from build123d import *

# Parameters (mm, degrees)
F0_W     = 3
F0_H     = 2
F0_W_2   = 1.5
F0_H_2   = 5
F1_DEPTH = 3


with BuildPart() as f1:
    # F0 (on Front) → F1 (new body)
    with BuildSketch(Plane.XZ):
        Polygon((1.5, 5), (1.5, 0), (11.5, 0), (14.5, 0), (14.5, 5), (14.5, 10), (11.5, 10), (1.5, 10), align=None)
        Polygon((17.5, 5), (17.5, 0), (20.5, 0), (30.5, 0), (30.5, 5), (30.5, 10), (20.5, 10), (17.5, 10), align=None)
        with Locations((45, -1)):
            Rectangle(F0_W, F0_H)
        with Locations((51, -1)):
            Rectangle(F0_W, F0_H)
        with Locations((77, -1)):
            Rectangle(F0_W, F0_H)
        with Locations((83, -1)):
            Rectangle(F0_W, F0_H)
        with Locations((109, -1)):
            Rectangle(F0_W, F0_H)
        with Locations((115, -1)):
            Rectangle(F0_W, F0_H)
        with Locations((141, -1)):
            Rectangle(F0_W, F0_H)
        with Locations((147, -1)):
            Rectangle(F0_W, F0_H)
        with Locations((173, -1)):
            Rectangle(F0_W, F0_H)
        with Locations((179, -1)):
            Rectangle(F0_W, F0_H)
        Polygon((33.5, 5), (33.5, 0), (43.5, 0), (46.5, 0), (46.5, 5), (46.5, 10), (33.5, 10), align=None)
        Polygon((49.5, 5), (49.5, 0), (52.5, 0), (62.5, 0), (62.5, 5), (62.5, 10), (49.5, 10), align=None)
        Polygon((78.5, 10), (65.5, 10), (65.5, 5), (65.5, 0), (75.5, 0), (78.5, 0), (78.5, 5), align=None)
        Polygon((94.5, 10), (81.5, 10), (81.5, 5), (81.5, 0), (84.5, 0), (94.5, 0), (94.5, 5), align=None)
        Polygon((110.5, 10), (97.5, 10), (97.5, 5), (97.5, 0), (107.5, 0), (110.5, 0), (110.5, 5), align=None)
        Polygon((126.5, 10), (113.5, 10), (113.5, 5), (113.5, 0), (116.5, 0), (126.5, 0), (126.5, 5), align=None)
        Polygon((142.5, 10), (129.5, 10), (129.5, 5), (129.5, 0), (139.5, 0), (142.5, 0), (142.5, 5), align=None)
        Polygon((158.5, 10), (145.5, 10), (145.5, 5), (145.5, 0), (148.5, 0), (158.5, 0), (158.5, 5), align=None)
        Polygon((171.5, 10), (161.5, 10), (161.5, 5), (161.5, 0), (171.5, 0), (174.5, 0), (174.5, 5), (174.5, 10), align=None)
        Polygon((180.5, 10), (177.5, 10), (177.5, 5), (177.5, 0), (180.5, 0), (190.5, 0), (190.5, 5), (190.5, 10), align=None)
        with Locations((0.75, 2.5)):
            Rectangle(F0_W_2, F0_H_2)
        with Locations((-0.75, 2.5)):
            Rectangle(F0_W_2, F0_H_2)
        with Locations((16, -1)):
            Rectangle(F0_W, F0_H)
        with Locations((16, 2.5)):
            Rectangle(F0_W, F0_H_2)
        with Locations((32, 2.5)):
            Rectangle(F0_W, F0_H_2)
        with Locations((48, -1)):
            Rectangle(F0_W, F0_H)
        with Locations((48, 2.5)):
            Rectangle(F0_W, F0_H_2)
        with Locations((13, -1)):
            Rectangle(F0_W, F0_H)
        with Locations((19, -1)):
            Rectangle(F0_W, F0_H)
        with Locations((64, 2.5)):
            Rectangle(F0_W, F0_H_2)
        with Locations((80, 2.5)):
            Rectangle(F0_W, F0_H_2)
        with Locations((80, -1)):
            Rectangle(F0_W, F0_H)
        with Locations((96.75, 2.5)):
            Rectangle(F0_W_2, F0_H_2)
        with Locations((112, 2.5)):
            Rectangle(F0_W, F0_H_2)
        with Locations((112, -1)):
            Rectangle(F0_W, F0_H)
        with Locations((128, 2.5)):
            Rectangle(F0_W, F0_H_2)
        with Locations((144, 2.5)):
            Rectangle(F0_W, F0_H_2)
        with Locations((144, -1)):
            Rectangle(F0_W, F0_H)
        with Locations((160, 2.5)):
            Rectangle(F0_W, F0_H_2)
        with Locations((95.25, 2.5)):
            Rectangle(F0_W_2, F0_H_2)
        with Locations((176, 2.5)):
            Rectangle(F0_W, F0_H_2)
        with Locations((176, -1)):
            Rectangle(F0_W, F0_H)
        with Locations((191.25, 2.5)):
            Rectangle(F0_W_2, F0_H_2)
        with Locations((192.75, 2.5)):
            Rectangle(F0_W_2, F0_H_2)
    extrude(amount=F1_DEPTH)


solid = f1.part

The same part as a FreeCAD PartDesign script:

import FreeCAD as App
import Part
import Sketcher

V = App.Vector

doc = App.newDocument("Part")
body = doc.addObject("PartDesign::Body", "Body")

# Sketch on XZ plane
sketch1 = body.newObject("Sketcher::SketchObject", "Sketch")
sketch1.AttachmentSupport = (doc.getObject("XZ_Plane"), [""])
sketch1.MapMode = "FlatFace"
sketch1.addGeometry([
    Part.LineSegment(V(14.5, 5, 0), V(14.5, 10, 0)),  # 0
    Part.LineSegment(V(14.5, 10, 0), V(1.5, 10, 0)),  # 1
    Part.LineSegment(V(1.5, 10, 0), V(1.5, 5, 0)),  # 2
    Part.LineSegment(V(1.5, 5, 0), V(-1.5, 5, 0)),  # 3
    Part.LineSegment(V(-1.5, 5, 0), V(-1.5, 0, 0)),  # 4
    Part.LineSegment(V(-1.5, 0, 0), V(11.5, 0, 0)),  # 5
    Part.LineSegment(V(11.5, 0, 0), V(11.5, -2, 0)),  # 6
    Part.LineSegment(V(11.5, -2, 0), V(20.5, -2, 0)),  # 7
    Part.LineSegment(V(20.5, -2, 0), V(20.5, 0, 0)),  # 8
    Part.LineSegment(V(20.5, 0, 0), V(43.5, 0, 0)),  # 9
    Part.LineSegment(V(43.5, 0, 0), V(43.5, -2, 0)),  # 10
    Part.LineSegment(V(43.5, -2, 0), V(52.5, -2, 0)),  # 11
    Part.LineSegment(V(52.5, -2, 0), V(52.5, 0, 0)),  # 12
    Part.LineSegment(V(52.5, 0, 0), V(75.5, 0, 0)),  # 13
    Part.LineSegment(V(75.5, 0, 0), V(75.5, -2, 0)),  # 14
    Part.LineSegment(V(75.5, -2, 0), V(84.5, -2, 0)),  # 15
    Part.LineSegment(V(84.5, -2, 0), V(84.5, 0, 0)),  # 16
    Part.LineSegment(V(84.5, 0, 0), V(107.5, 0, 0)),  # 17
    Part.LineSegment(V(107.5, 0, 0), V(107.5, -2, 0)),  # 18
    Part.LineSegment(V(107.5, -2, 0), V(116.5, -2, 0)),  # 19
    Part.LineSegment(V(116.5, -2, 0), V(116.5, 0, 0)),  # 20
    Part.LineSegment(V(116.5, 0, 0), V(139.5, 0, 0)),  # 21
    Part.LineSegment(V(139.5, 0, 0), V(139.5, -2, 0)),  # 22
    Part.LineSegment(V(139.5, -2, 0), V(148.5, -2, 0)),  # 23
    Part.LineSegment(V(148.5, -2, 0), V(148.5, 0, 0)),  # 24
    Part.LineSegment(V(148.5, 0, 0), V(171.5, 0, 0)),  # 25
    Part.LineSegment(V(171.5, 0, 0), V(171.5, -2, 0)),  # 26
    Part.LineSegment(V(171.5, -2, 0), V(180.5, -2, 0)),  # 27
    Part.LineSegment(V(180.5, -2, 0), V(180.5, 0, 0)),  # 28
    Part.LineSegment(V(180.5, 0, 0), V(193.5, 0, 0)),  # 29
    Part.LineSegment(V(193.5, 0, 0), V(193.5, 5, 0)),  # 30
    Part.LineSegment(V(193.5, 5, 0), V(190.5, 5, 0)),  # 31
    Part.LineSegment(V(190.5, 5, 0), V(190.5, 10, 0)),  # 32
    Part.LineSegment(V(190.5, 10, 0), V(177.5, 10, 0)),  # 33
    Part.LineSegment(V(177.5, 10, 0), V(177.5, 5, 0)),  # 34
    Part.LineSegment(V(177.5, 5, 0), V(174.5, 5, 0)),  # 35
    Part.LineSegment(V(174.5, 5, 0), V(174.5, 10, 0)),  # 36
    Part.LineSegment(V(174.5, 10, 0), V(161.5, 10, 0)),  # 37
    Part.LineSegment(V(161.5, 10, 0), V(161.5, 5, 0)),  # 38
    Part.LineSegment(V(161.5, 5, 0), V(158.5, 5, 0)),  # 39
    Part.LineSegment(V(158.5, 5, 0), V(158.5, 10, 0)),  # 40
    Part.LineSegment(V(158.5, 10, 0), V(145.5, 10, 0)),  # 41
    Part.LineSegment(V(145.5, 10, 0), V(145.5, 5, 0)),  # 42
    Part.LineSegment(V(145.5, 5, 0), V(142.5, 5, 0)),  # 43
    Part.LineSegment(V(142.5, 5, 0), V(142.5, 10, 0)),  # 44
    Part.LineSegment(V(142.5, 10, 0), V(129.5, 10, 0)),  # 45
    Part.LineSegment(V(129.5, 10, 0), V(129.5, 5, 0)),  # 46
    Part.LineSegment(V(129.5, 5, 0), V(126.5, 5, 0)),  # 47
    Part.LineSegment(V(126.5, 5, 0), V(126.5, 10, 0)),  # 48
    Part.LineSegment(V(126.5, 10, 0), V(113.5, 10, 0)),  # 49
    Part.LineSegment(V(113.5, 10, 0), V(113.5, 5, 0)),  # 50
    Part.LineSegment(V(113.5, 5, 0), V(110.5, 5, 0)),  # 51
    Part.LineSegment(V(110.5, 5, 0), V(110.5, 10, 0)),  # 52
    Part.LineSegment(V(110.5, 10, 0), V(97.5, 10, 0)),  # 53
    Part.LineSegment(V(97.5, 10, 0), V(97.5, 5, 0)),  # 54
    Part.LineSegment(V(97.5, 5, 0), V(94.5, 5, 0)),  # 55
    Part.LineSegment(V(94.5, 5, 0), V(94.5, 10, 0)),  # 56
    Part.LineSegment(V(94.5, 10, 0), V(81.5, 10, 0)),  # 57
    Part.LineSegment(V(81.5, 10, 0), V(81.5, 5, 0)),  # 58
    Part.LineSegment(V(81.5, 5, 0), V(78.5, 5, 0)),  # 59
    Part.LineSegment(V(78.5, 5, 0), V(78.5, 10, 0)),  # 60
    Part.LineSegment(V(78.5, 10, 0), V(65.5, 10, 0)),  # 61
    Part.LineSegment(V(65.5, 10, 0), V(65.5, 5, 0)),  # 62
    Part.LineSegment(V(65.5, 5, 0), V(62.5, 5, 0)),  # 63
    Part.LineSegment(V(62.5, 5, 0), V(62.5, 10, 0)),  # 64
    Part.LineSegment(V(62.5, 10, 0), V(49.5, 10, 0)),  # 65
    Part.LineSegment(V(49.5, 10, 0), V(49.5, 5, 0)),  # 66
    Part.LineSegment(V(49.5, 5, 0), V(46.5, 5, 0)),  # 67
    Part.LineSegment(V(46.5, 5, 0), V(46.5, 10, 0)),  # 68
    Part.LineSegment(V(46.5, 10, 0), V(33.5, 10, 0)),  # 69
    Part.LineSegment(V(33.5, 10, 0), V(33.5, 5, 0)),  # 70
    Part.LineSegment(V(33.5, 5, 0), V(30.5, 5, 0)),  # 71
    Part.LineSegment(V(30.5, 5, 0), V(30.5, 10, 0)),  # 72
    Part.LineSegment(V(30.5, 10, 0), V(17.5, 10, 0)),  # 73
    Part.LineSegment(V(17.5, 10, 0), V(17.5, 5, 0)),  # 74
    Part.LineSegment(V(17.5, 5, 0), V(14.5, 5, 0)),  # 75
], False)
sketch1.addConstraint([
    Sketcher.Constraint("Coincident", 0, 2, 1, 1),
    Sketcher.Constraint("Coincident", 1, 2, 2, 1),
    Sketcher.Constraint("Coincident", 2, 2, 3, 1),
    Sketcher.Constraint("Coincident", 3, 2, 4, 1),
    Sketcher.Constraint("Coincident", 4, 2, 5, 1),
    Sketcher.Constraint("Coincident", 5, 2, 6, 1),
    Sketcher.Constraint("Coincident", 6, 2, 7, 1),
    Sketcher.Constraint("Coincident", 7, 2, 8, 1),
    Sketcher.Constraint("Coincident", 8, 2, 9, 1),
    Sketcher.Constraint("Coincident", 9, 2, 10, 1),
    Sketcher.Constraint("Coincident", 10, 2, 11, 1),
    Sketcher.Constraint("Coincident", 11, 2, 12, 1),
    Sketcher.Constraint("Coincident", 12, 2, 13, 1),
    Sketcher.Constraint("Coincident", 13, 2, 14, 1),
    Sketcher.Constraint("Coincident", 14, 2, 15, 1),
    Sketcher.Constraint("Coincident", 15, 2, 16, 1),
    Sketcher.Constraint("Coincident", 16, 2, 17, 1),
    Sketcher.Constraint("Coincident", 17, 2, 18, 1),
    Sketcher.Constraint("Coincident", 18, 2, 19, 1),
    Sketcher.Constraint("Coincident", 19, 2, 20, 1),
    Sketcher.Constraint("Coincident", 20, 2, 21, 1),
    Sketcher.Constraint("Coincident", 21, 2, 22, 1),
    Sketcher.Constraint("Coincident", 22, 2, 23, 1),
    Sketcher.Constraint("Coincident", 23, 2, 24, 1),
    Sketcher.Constraint("Coincident", 24, 2, 25, 1),
    Sketcher.Constraint("Coincident", 25, 2, 26, 1),
    Sketcher.Constraint("Coincident", 26, 2, 27, 1),
    Sketcher.Constraint("Coincident", 27, 2, 28, 1),
    Sketcher.Constraint("Coincident", 28, 2, 29, 1),
    Sketcher.Constraint("Coincident", 29, 2, 30, 1),
    Sketcher.Constraint("Coincident", 30, 2, 31, 1),
    Sketcher.Constraint("Coincident", 31, 2, 32, 1),
    Sketcher.Constraint("Coincident", 32, 2, 33, 1),
    Sketcher.Constraint("Coincident", 33, 2, 34, 1),
    Sketcher.Constraint("Coincident", 34, 2, 35, 1),
    Sketcher.Constraint("Coincident", 35, 2, 36, 1),
    Sketcher.Constraint("Coincident", 36, 2, 37, 1),
    Sketcher.Constraint("Coincident", 37, 2, 38, 1),
    Sketcher.Constraint("Coincident", 38, 2, 39, 1),
    Sketcher.Constraint("Coincident", 39, 2, 40, 1),
    Sketcher.Constraint("Coincident", 40, 2, 41, 1),
    Sketcher.Constraint("Coincident", 41, 2, 42, 1),
    Sketcher.Constraint("Coincident", 42, 2, 43, 1),
    Sketcher.Constraint("Coincident", 43, 2, 44, 1),
    Sketcher.Constraint("Coincident", 44, 2, 45, 1),
    Sketcher.Constraint("Coincident", 45, 2, 46, 1),
    Sketcher.Constraint("Coincident", 46, 2, 47, 1),
    Sketcher.Constraint("Coincident", 47, 2, 48, 1),
    Sketcher.Constraint("Coincident", 48, 2, 49, 1),
    Sketcher.Constraint("Coincident", 49, 2, 50, 1),
    Sketcher.Constraint("Coincident", 50, 2, 51, 1),
    Sketcher.Constraint("Coincident", 51, 2, 52, 1),
    Sketcher.Constraint("Coincident", 52, 2, 53, 1),
    Sketcher.Constraint("Coincident", 53, 2, 54, 1),
    Sketcher.Constraint("Coincident", 54, 2, 55, 1),
    Sketcher.Constraint("Coincident", 55, 2, 56, 1),
    Sketcher.Constraint("Coincident", 56, 2, 57, 1),
    Sketcher.Constraint("Coincident", 57, 2, 58, 1),
    Sketcher.Constraint("Coincident", 58, 2, 59, 1),
    Sketcher.Constraint("Coincident", 59, 2, 60, 1),
    Sketcher.Constraint("Coincident", 60, 2, 61, 1),
    Sketcher.Constraint("Coincident", 61, 2, 62, 1),
    Sketcher.Constraint("Coincident", 62, 2, 63, 1),
    Sketcher.Constraint("Coincident", 63, 2, 64, 1),
    Sketcher.Constraint("Coincident", 64, 2, 65, 1),
    Sketcher.Constraint("Coincident", 65, 2, 66, 1),
    Sketcher.Constraint("Coincident", 66, 2, 67, 1),
    Sketcher.Constraint("Coincident", 67, 2, 68, 1),
    Sketcher.Constraint("Coincident", 68, 2, 69, 1),
    Sketcher.Constraint("Coincident", 69, 2, 70, 1),
    Sketcher.Constraint("Coincident", 70, 2, 71, 1),
    Sketcher.Constraint("Coincident", 71, 2, 72, 1),
    Sketcher.Constraint("Coincident", 72, 2, 73, 1),
    Sketcher.Constraint("Coincident", 73, 2, 74, 1),
    Sketcher.Constraint("Coincident", 74, 2, 75, 1),
    Sketcher.Constraint("Coincident", 75, 2, 0, 1),
    Sketcher.Constraint("Vertical", 0),
    Sketcher.Constraint("Horizontal", 1),
    Sketcher.Constraint("Vertical", 2),
    Sketcher.Constraint("Horizontal", 3),
    Sketcher.Constraint("Vertical", 4),
    Sketcher.Constraint("Horizontal", 5),
    Sketcher.Constraint("Vertical", 6),
    Sketcher.Constraint("Horizontal", 7),
    Sketcher.Constraint("Vertical", 8),
    Sketcher.Constraint("Horizontal", 9),
    Sketcher.Constraint("Vertical", 10),
    Sketcher.Constraint("Horizontal", 11),
    Sketcher.Constraint("Vertical", 12),
    Sketcher.Constraint("Horizontal", 13),
    Sketcher.Constraint("Vertical", 14),
    Sketcher.Constraint("Horizontal", 15),
    Sketcher.Constraint("Vertical", 16),
    Sketcher.Constraint("Horizontal", 17),
    Sketcher.Constraint("Vertical", 18),
    Sketcher.Constraint("Horizontal", 19),
    Sketcher.Constraint("Vertical", 20),
    Sketcher.Constraint("Horizontal", 21),
    Sketcher.Constraint("Vertical", 22),
    Sketcher.Constraint("Horizontal", 23),
    Sketcher.Constraint("Vertical", 24),
    Sketcher.Constraint("Horizontal", 25),
    Sketcher.Constraint("Vertical", 26),
    Sketcher.Constraint("Horizontal", 27),
    Sketcher.Constraint("Vertical", 28),
    Sketcher.Constraint("Horizontal", 29),
    Sketcher.Constraint("Vertical", 30),
    Sketcher.Constraint("Horizontal", 31),
    Sketcher.Constraint("Vertical", 32),
    Sketcher.Constraint("Horizontal", 33),
    Sketcher.Constraint("Vertical", 34),
    Sketcher.Constraint("Horizontal", 35),
    Sketcher.Constraint("Vertical", 36),
    Sketcher.Constraint("Horizontal", 37),
    Sketcher.Constraint("Vertical", 38),
    Sketcher.Constraint("Horizontal", 39),
    Sketcher.Constraint("Vertical", 40),
    Sketcher.Constraint("Horizontal", 41),
    Sketcher.Constraint("Vertical", 42),
    Sketcher.Constraint("Horizontal", 43),
    Sketcher.Constraint("Vertical", 44),
    Sketcher.Constraint("Horizontal", 45),
    Sketcher.Constraint("Vertical", 46),
    Sketcher.Constraint("Horizontal", 47),
    Sketcher.Constraint("Vertical", 48),
    Sketcher.Constraint("Horizontal", 49),
    Sketcher.Constraint("Vertical", 50),
    Sketcher.Constraint("Horizontal", 51),
    Sketcher.Constraint("Vertical", 52),
    Sketcher.Constraint("Horizontal", 53),
    Sketcher.Constraint("Vertical", 54),
    Sketcher.Constraint("Horizontal", 55),
    Sketcher.Constraint("Vertical", 56),
    Sketcher.Constraint("Horizontal", 57),
    Sketcher.Constraint("Vertical", 58),
    Sketcher.Constraint("Horizontal", 59),
    Sketcher.Constraint("Vertical", 60),
    Sketcher.Constraint("Horizontal", 61),
    Sketcher.Constraint("Vertical", 62),
    Sketcher.Constraint("Horizontal", 63),
    Sketcher.Constraint("Vertical", 64),
    Sketcher.Constraint("Horizontal", 65),
    Sketcher.Constraint("Vertical", 66),
    Sketcher.Constraint("Horizontal", 67),
    Sketcher.Constraint("Vertical", 68),
    Sketcher.Constraint("Horizontal", 69),
    Sketcher.Constraint("Vertical", 70),
    Sketcher.Constraint("Horizontal", 71),
    Sketcher.Constraint("Vertical", 72),
    Sketcher.Constraint("Horizontal", 73),
    Sketcher.Constraint("Vertical", 74),
    Sketcher.Constraint("Horizontal", 75),
    Sketcher.Constraint("PointOnObject", 4, 2, -1),
    Sketcher.Constraint("PointOnObject", 8, 2, -1),
    Sketcher.Constraint("PointOnObject", 12, 2, -1),
    Sketcher.Constraint("PointOnObject", 16, 2, -1),
    Sketcher.Constraint("PointOnObject", 20, 2, -1),
    Sketcher.Constraint("PointOnObject", 24, 2, -1),
    Sketcher.Constraint("PointOnObject", 28, 2, -1),
    Sketcher.Constraint("Horizontal", 7, 2, 10, 2),
    Sketcher.Constraint("Horizontal", 11, 2, 14, 2),
    Sketcher.Constraint("Horizontal", 15, 2, 18, 2),
    Sketcher.Constraint("Horizontal", 19, 2, 22, 2),
    Sketcher.Constraint("Horizontal", 23, 2, 26, 2),
    Sketcher.Constraint("Horizontal", 3, 2, 30, 2),
    Sketcher.Constraint("Horizontal", 1, 2, 32, 2),
    Sketcher.Constraint("Horizontal", 31, 2, 34, 2),
    Sketcher.Constraint("Horizontal", 33, 2, 36, 2),
    Sketcher.Constraint("Horizontal", 35, 2, 38, 2),
    Sketcher.Constraint("Horizontal", 37, 2, 40, 2),
    Sketcher.Constraint("Horizontal", 39, 2, 42, 2),
    Sketcher.Constraint("Horizontal", 41, 2, 44, 2),
    Sketcher.Constraint("Horizontal", 43, 2, 46, 2),
    Sketcher.Constraint("Horizontal", 45, 2, 48, 2),
    Sketcher.Constraint("Horizontal", 47, 2, 50, 2),
    Sketcher.Constraint("Horizontal", 49, 2, 52, 2),
    Sketcher.Constraint("Horizontal", 51, 2, 54, 2),
    Sketcher.Constraint("Horizontal", 53, 2, 56, 2),
    Sketcher.Constraint("Horizontal", 55, 2, 58, 2),
    Sketcher.Constraint("Horizontal", 57, 2, 60, 2),
    Sketcher.Constraint("Horizontal", 59, 2, 62, 2),
    Sketcher.Constraint("Horizontal", 61, 2, 64, 2),
    Sketcher.Constraint("Horizontal", 63, 2, 66, 2),
    Sketcher.Constraint("Horizontal", 65, 2, 68, 2),
    Sketcher.Constraint("Horizontal", 67, 2, 70, 2),
    Sketcher.Constraint("Horizontal", 69, 2, 72, 2),
    Sketcher.Constraint("Horizontal", 71, 2, 74, 2),
    Sketcher.Constraint("Equal", 1, 5),
    Sketcher.Constraint("Equal", 7, 11),
    Sketcher.Constraint("Equal", 9, 13),
    Sketcher.Constraint("Equal", 11, 15),
    Sketcher.Constraint("Equal", 13, 17),
    Sketcher.Constraint("Equal", 15, 19),
    Sketcher.Constraint("Equal", 17, 21),
    Sketcher.Constraint("Equal", 19, 23),
    Sketcher.Constraint("Equal", 21, 25),
    Sketcher.Constraint("Equal", 23, 27),
    Sketcher.Constraint("Equal", 5, 29),
    Sketcher.Constraint("Equal", 3, 31),
    Sketcher.Constraint("Equal", 29, 33),
    Sketcher.Constraint("Equal", 31, 35),
    Sketcher.Constraint("Equal", 33, 37),
    Sketcher.Constraint("Equal", 35, 39),
    Sketcher.Constraint("Equal", 37, 41),
    Sketcher.Constraint("Equal", 39, 43),
    Sketcher.Constraint("Equal", 41, 45),
    Sketcher.Constraint("Equal", 43, 47),
    Sketcher.Constraint("Equal", 45, 49),
    Sketcher.Constraint("Equal", 47, 51),
    Sketcher.Constraint("Equal", 49, 53),
    Sketcher.Constraint("Equal", 51, 55),
    Sketcher.Constraint("Equal", 53, 57),
    Sketcher.Constraint("Equal", 55, 59),
    Sketcher.Constraint("Equal", 57, 61),
    Sketcher.Constraint("Equal", 59, 63),
    Sketcher.Constraint("Equal", 61, 65),
    Sketcher.Constraint("Equal", 63, 67),
    Sketcher.Constraint("Equal", 65, 69),
    Sketcher.Constraint("Equal", 67, 71),
    Sketcher.Constraint("Equal", 69, 73),
    Sketcher.Constraint("Equal", 71, 75),
    Sketcher.Constraint("Equal", 2, 4),
    Sketcher.Constraint("DistanceX", 1, 2, 1, 1, 13.0),
    Sketcher.Constraint("DistanceX", 3, 2, 3, 1, 3.0),
    Sketcher.Constraint("DistanceX", 7, 1, 7, 2, 9.0),
    Sketcher.Constraint("DistanceY", 0, 1, 0, 2, 5.0),
    Sketcher.Constraint("DistanceY", 6, 2, 6, 1, 2.0),
    Sketcher.Constraint("DistanceX", -1, 1, 0, 2, 14.5),
])
pad1 = body.newObject("PartDesign::Pad", "Pad")
pad1.Profile = sketch1
pad1.Length = 3

doc.recompute()
